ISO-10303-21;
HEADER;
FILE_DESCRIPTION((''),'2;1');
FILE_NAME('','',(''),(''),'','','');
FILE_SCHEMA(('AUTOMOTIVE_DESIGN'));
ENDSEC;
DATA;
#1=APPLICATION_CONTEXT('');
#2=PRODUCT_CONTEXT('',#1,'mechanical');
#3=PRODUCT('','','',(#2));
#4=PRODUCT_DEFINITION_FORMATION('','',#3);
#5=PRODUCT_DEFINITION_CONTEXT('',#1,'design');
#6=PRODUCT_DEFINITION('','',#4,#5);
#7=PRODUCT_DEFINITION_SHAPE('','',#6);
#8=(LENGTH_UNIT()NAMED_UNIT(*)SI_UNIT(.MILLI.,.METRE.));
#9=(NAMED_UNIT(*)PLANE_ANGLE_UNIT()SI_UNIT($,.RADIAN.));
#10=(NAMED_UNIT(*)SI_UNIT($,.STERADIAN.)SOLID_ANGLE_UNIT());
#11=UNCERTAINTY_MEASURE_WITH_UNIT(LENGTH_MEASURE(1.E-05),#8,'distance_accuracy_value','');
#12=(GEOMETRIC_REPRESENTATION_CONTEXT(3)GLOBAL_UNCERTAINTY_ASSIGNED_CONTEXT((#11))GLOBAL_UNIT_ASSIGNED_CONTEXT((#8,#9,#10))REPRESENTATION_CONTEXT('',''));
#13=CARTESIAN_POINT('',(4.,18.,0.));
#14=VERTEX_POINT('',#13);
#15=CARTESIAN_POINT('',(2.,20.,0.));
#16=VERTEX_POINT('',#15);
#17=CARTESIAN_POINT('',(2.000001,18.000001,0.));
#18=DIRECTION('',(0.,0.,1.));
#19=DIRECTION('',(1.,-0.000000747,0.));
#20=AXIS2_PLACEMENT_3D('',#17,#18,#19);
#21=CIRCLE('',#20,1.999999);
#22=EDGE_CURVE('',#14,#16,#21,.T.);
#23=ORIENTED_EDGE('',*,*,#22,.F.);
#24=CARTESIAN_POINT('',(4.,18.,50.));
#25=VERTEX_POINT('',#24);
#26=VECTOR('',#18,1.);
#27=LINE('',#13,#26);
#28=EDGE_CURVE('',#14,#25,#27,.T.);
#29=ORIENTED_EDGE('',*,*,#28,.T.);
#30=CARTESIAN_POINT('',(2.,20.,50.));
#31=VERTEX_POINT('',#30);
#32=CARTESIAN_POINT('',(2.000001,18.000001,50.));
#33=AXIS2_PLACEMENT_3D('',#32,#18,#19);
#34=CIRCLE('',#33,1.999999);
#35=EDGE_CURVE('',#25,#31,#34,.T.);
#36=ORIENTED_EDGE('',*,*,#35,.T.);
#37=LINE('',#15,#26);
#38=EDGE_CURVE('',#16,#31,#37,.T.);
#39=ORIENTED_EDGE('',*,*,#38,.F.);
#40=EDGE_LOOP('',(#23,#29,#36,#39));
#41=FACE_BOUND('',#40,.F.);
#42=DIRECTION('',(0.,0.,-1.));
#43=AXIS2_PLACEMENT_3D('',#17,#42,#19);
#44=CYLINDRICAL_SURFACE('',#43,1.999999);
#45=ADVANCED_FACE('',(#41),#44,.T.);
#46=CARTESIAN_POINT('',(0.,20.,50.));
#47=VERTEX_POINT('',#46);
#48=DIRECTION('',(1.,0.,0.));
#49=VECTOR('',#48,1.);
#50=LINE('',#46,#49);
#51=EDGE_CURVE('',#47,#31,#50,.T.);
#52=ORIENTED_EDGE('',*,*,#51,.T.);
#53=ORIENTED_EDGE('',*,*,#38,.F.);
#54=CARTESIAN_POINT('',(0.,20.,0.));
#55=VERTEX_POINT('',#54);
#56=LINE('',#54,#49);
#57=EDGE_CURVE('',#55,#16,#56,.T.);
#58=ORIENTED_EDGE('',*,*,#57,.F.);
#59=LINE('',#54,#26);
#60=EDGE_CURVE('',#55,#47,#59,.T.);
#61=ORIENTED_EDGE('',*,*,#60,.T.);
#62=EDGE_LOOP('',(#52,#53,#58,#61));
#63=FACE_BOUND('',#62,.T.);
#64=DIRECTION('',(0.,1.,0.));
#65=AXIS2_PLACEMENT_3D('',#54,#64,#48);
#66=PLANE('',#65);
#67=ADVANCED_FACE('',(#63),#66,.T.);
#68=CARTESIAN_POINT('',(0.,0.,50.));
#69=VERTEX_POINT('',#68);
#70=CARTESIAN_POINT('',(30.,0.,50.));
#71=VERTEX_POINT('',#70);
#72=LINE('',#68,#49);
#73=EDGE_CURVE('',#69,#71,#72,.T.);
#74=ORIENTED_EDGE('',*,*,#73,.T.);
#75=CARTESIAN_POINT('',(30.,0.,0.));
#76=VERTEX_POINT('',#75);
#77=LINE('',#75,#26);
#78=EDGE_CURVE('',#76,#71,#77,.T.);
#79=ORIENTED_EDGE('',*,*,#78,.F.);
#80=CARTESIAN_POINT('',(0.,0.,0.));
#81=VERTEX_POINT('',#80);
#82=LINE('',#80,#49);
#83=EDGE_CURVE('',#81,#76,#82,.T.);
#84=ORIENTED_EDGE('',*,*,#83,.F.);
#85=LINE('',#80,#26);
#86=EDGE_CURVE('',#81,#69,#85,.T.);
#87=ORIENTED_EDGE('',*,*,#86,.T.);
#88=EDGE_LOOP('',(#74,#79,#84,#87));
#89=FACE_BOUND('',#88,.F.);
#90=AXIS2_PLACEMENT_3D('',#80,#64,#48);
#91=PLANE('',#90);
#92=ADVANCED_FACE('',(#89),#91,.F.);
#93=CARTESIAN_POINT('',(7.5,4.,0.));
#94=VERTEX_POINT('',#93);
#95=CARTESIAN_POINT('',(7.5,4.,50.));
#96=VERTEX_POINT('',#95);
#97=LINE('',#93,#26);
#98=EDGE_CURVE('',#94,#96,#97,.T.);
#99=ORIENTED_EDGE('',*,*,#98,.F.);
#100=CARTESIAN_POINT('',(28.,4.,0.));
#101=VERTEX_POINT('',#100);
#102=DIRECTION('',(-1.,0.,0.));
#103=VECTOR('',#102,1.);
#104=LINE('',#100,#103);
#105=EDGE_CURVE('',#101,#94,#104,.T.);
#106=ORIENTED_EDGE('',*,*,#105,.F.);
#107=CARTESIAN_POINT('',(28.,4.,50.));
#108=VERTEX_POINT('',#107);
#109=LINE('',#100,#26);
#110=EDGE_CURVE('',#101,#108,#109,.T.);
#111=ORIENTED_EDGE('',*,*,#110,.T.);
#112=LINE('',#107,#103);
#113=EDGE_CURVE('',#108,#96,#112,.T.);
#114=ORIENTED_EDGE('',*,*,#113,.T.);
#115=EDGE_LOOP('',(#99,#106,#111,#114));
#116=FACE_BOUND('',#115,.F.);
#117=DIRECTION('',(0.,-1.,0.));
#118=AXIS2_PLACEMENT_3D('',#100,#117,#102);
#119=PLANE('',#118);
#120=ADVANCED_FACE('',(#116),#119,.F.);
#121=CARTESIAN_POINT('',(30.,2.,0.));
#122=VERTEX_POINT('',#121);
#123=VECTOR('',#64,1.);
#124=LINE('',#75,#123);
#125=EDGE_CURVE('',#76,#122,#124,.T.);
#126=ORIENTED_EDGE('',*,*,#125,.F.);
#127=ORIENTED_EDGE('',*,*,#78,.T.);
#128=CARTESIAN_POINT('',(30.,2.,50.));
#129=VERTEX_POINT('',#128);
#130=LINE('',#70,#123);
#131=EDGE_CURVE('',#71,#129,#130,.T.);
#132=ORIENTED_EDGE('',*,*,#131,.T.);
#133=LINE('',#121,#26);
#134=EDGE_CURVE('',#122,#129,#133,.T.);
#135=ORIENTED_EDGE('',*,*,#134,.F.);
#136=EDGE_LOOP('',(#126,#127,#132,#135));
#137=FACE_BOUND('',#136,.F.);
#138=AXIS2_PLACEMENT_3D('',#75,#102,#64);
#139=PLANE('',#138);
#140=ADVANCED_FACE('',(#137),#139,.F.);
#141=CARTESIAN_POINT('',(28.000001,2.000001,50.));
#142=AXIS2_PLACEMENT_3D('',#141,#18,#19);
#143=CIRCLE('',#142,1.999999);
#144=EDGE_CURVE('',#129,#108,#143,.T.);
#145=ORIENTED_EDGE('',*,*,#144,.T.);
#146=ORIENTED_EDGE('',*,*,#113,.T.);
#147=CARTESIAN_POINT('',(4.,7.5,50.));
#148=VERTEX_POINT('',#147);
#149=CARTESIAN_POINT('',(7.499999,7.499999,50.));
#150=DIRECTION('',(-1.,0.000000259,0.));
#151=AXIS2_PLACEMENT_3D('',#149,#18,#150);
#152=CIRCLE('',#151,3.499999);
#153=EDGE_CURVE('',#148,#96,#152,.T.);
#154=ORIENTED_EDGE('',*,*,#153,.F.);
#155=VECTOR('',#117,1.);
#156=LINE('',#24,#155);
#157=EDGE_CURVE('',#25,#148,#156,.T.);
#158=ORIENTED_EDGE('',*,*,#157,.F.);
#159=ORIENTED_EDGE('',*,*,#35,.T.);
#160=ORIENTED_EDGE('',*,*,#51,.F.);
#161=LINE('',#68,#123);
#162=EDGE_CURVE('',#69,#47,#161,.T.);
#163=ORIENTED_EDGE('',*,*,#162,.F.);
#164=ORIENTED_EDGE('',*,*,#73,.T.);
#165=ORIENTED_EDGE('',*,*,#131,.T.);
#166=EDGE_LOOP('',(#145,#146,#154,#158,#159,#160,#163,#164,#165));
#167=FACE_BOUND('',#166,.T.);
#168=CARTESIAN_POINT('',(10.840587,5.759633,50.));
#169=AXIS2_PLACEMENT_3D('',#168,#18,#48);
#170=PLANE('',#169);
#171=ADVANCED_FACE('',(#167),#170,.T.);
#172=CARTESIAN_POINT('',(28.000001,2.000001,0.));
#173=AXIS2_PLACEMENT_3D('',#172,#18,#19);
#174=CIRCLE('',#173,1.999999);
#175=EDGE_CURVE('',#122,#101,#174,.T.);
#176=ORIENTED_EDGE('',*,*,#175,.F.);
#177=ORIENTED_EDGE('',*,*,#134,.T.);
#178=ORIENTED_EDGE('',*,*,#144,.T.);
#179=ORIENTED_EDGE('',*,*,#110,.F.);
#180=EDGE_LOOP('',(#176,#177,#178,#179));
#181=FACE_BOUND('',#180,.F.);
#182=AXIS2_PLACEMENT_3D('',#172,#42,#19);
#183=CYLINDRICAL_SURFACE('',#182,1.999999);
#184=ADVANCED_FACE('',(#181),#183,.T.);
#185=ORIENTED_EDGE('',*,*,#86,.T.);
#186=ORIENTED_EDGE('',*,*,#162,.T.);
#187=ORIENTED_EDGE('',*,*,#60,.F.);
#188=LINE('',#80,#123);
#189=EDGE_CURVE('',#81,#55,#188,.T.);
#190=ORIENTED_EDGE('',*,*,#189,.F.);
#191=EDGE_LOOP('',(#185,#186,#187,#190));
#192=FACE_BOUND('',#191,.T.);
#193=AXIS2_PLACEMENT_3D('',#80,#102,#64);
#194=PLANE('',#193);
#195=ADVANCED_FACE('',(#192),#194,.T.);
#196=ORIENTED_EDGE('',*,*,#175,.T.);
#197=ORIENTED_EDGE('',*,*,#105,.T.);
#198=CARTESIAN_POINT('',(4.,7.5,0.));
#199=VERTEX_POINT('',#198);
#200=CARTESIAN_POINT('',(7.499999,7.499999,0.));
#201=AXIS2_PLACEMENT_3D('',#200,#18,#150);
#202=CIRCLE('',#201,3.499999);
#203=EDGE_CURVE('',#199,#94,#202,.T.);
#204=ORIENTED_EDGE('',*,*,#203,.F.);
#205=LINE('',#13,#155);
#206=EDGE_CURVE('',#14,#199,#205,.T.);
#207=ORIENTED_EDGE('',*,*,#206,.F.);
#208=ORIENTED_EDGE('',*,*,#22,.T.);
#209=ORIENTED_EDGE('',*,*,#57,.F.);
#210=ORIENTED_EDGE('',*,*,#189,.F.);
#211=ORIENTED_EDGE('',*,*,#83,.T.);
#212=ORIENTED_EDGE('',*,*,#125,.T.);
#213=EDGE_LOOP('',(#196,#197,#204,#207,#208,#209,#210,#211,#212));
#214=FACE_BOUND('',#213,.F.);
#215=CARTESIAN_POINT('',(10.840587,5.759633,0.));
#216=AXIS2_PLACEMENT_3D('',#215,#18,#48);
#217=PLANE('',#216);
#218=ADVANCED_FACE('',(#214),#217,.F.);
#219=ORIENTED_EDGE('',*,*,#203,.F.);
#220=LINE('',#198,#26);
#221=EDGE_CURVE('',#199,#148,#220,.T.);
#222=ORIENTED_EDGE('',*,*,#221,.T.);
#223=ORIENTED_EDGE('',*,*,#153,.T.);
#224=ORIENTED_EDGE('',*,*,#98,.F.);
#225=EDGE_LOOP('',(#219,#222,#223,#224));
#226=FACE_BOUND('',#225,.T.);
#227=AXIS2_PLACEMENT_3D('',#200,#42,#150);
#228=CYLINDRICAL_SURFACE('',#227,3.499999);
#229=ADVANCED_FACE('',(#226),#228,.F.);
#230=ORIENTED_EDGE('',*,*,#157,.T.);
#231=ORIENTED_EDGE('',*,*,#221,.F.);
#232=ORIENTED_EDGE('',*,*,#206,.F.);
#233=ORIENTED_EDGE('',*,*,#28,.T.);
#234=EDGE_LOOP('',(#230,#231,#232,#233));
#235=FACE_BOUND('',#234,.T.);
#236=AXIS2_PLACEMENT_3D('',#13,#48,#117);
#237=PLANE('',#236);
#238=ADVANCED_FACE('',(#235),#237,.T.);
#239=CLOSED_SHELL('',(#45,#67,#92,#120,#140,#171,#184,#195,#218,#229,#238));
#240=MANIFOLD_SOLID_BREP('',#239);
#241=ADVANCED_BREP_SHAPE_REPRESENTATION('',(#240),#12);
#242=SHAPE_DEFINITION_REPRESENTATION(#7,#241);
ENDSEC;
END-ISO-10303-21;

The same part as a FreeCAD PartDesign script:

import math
import FreeCAD as App
import Part
import Sketcher

V = App.Vector
Q = App.Units.Quantity

doc = App.newDocument("Part")
body = doc.addObject("PartDesign::Body", "Body")

# Sketch on XY plane
sketch1 = doc.addObject("Sketcher::SketchObject", "Sketch")
body.addObject(sketch1)
sketch1.AttachmentSupport = (doc.XY_Plane, [""])
sketch1.MapMode = "FlatFace"
sketch1.addGeometry(Part.LineSegment(V(0, 0, 0), V(30, 0, 0)), False)
sketch1.addGeometry(Part.LineSegment(V(30, 0, 0), V(30, 2, 0)), False)
sketch1.addGeometry(Part.ArcOfCircle(Part.Circle(V(28, 2, 0), V(0, 0, 1), 2), math.radians(0), math.radians(90)), False)
sketch1.addGeometry(Part.LineSegment(V(28, 4, 0), V(7.5, 4, 0)), False)
sketch1.addGeometry(Part.ArcOfCircle(Part.Circle(V(7.5, 7.5, 0), V(0, 0, 1), 3.5), math.radians(180), math.radians(270)), False)
sketch1.addGeometry(Part.LineSegment(V(4, 7.5, 0), V(4, 18, 0)), False)
sketch1.addGeometry(Part.ArcOfCircle(Part.Circle(V(2, 18, 0), V(0, 0, 1), 2), math.radians(0), math.radians(90)), False)
sketch1.addGeometry(Part.LineSegment(V(2, 20, 0), V(0, 20, 0)), False)
sketch1.addGeometry(Part.LineSegment(V(0, 20, 0), V(0, 0, 0)), False)
sketch1.addConstraint(Sketcher.Constraint("Coincident", 0, 2, 1, 1))
sketch1.addConstraint(Sketcher.Constraint("Tangent", 1, 2, 2, 1))
sketch1.addConstraint(Sketcher.Constraint("Tangent", 2, 2, 3, 1))
sketch1.addConstraint(Sketcher.Constraint("Tangent", 3, 2, 4, 2))
sketch1.addConstraint(Sketcher.Constraint("Tangent", 4, 1, 5, 1))
sketch1.addConstraint(Sketcher.Constraint("Tangent", 5, 2, 6, 1))
sketch1.addConstraint(Sketcher.Constraint("Tangent", 6, 2, 7, 1))
sketch1.addConstraint(Sketcher.Constraint("Coincident", 7, 2, 8, 1))
sketch1.addConstraint(Sketcher.Constraint("Coincident", 8, 2, 0, 1))
sketch1.addConstraint(Sketcher.Constraint("Horizontal", 0))
sketch1.addConstraint(Sketcher.Constraint("Vertical", 1))
sketch1.addConstraint(Sketcher.Constraint("Horizontal", 3))
sketch1.addConstraint(Sketcher.Constraint("Vertical", 5))
sketch1.addConstraint(Sketcher.Constraint("Horizontal", 7))
sketch1.addConstraint(Sketcher.Constraint("Vertical", 8))
sketch1.addConstraint(Sketcher.Constraint("Coincident", 8, 2, -1, 1))
sketch1.addConstraint(Sketcher.Constraint("Equal", 2, 6))
sketch1.addConstraint(Sketcher.Constraint("Equal", 7, 1))
sketch1.addConstraint(Sketcher.Constraint("Radius", 2, Q("1.999999 mm")))
sketch1.addConstraint(Sketcher.Constraint("Radius", 4, Q("3.499999 mm")))
sketch1.addConstraint(Sketcher.Constraint("DistanceX", 0, 1, 0, 2, Q("30 mm")))
sketch1.addConstraint(Sketcher.Constraint("DistanceX", 7, 2, 7, 1, Q("2 mm")))
sketch1.addConstraint(Sketcher.Constraint("DistanceY", 8, 2, 8, 1, Q("20 mm")))
pad1 = doc.addObject("PartDesign::Pad", "Pad")
body.addObject(pad1)
pad1.Profile = sketch1
pad1.Length = 50

doc.recompute()
